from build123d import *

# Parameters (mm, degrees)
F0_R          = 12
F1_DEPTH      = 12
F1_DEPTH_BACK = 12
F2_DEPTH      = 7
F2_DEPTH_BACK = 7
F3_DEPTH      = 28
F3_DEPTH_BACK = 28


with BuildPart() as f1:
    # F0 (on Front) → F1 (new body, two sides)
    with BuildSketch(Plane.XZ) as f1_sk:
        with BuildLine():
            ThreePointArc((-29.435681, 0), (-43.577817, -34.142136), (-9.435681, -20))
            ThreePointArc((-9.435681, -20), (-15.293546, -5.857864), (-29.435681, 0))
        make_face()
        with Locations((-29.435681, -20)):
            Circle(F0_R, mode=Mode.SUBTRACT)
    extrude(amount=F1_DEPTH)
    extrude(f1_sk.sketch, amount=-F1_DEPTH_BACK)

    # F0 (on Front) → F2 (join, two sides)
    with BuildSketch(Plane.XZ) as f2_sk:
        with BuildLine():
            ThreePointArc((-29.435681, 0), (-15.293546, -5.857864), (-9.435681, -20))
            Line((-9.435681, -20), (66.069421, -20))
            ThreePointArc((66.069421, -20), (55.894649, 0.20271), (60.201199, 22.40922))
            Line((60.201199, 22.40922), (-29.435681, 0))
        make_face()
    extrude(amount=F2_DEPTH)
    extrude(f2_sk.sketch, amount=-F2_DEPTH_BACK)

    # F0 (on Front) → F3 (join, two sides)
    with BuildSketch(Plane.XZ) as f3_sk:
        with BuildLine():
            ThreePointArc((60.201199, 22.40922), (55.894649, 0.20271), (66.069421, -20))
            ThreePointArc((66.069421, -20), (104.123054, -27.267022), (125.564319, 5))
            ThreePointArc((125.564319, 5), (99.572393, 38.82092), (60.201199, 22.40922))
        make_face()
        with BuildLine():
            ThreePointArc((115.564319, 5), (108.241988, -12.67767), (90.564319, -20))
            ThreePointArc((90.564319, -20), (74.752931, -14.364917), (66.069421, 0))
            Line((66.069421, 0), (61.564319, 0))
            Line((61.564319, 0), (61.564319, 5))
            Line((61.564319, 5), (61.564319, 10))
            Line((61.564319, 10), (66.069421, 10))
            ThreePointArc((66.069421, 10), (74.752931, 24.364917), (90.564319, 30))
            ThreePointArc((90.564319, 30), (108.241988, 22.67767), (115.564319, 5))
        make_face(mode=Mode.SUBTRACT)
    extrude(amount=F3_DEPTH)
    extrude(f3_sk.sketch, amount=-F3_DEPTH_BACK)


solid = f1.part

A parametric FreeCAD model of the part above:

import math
import FreeCAD as App
import Part
import Sketcher

doc = App.newDocument("Part")
body = doc.addObject("PartDesign::Body", "Body")

sketch1 = body.newObject("Sketcher::SketchObject", "Sketch")
sketch1.AttachmentSupport = (doc.getObject("XZ_Plane"), [""])
sketch1.MapMode = "FlatFace"
sketch1.addGeometry(Part.ArcOfCircle(Part.Circle(App.Vector(-29, -20, 0), App.Vector(0, 0, 1), 20), math.radians(90), math.radians(360)), False)
sketch1.addGeometry(Part.ArcOfCircle(Part.Circle(App.Vector(-29, -20, 0), App.Vector(0, 0, 1), 20), math.radians(0), math.radians(90)), False)
sketch1.addGeometry(Part.Circle(App.Vector(-29, -20, 0), App.Vector(0, 0, 1), 12), False)
sketch1.addConstraint(Sketcher.Constraint("Tangent", 0, 1, 1, 2))
sketch1.addConstraint(Sketcher.Constraint("Coincident", 1, 1, 0, 2))
sketch1.addConstraint(Sketcher.Constraint("Coincident", 2, 3, 0, 3))
sketch1.addConstraint(Sketcher.Constraint("PointOnObject", 0, 1, -1))
sketch1.addConstraint(Sketcher.Constraint("Horizontal", 2, 3, 1, 1))
sketch1.addConstraint(Sketcher.Constraint("Vertical", 2, 3, 0, 1))
sketch1.addConstraint(Sketcher.Constraint("Diameter", 2, 24.0))
sketch1.addConstraint(Sketcher.Constraint("Radius", 0, 20.0))
sketch1.addConstraint(Sketcher.Constraint("DistanceX", 0, 3, -1, 1, 29.435681))
pad1 = body.newObject("PartDesign::Pad", "Pad")
pad1.Profile = sketch1
pad1.Type = "TwoLengths"
pad1.Length = 12
pad1.Length2 = 12

sketch2 = body.newObject("Sketcher::SketchObject", "Sketch001")
sketch2.AttachmentSupport = (doc.getObject("XZ_Plane"), [""])
sketch2.MapMode = "FlatFace"
sketch2.addGeometry(Part.ArcOfCircle(Part.Circle(App.Vector(-29, -20, 0), App.Vector(0, 0, 1), 20), math.radians(0), math.radians(90)), False)
sketch2.addGeometry(Part.LineSegment(App.Vector(-9, -20, 0), App.Vector(66, -20, 0)), False)
sketch2.addGeometry(Part.ArcOfCircle(Part.Circle(App.Vector(91, 5, 0), App.Vector(0, 0, 1), 35), math.radians(150), math.radians(226)), False)
sketch2.addGeometry(Part.LineSegment(App.Vector(60, 22, 0), App.Vector(-29, 0, 0)), False)
sketch2.addConstraint(Sketcher.Constraint("Coincident", 0, 1, 1, 1))
sketch2.addConstraint(Sketcher.Constraint("Coincident", 1, 2, 2, 2))
sketch2.addConstraint(Sketcher.Constraint("Coincident", 2, 1, 3, 1))
sketch2.addConstraint(Sketcher.Constraint("Coincident", 3, 2, 0, 2))
sketch2.addConstraint(Sketcher.Constraint("Horizontal", 1))
sketch2.addConstraint(Sketcher.Constraint("PointOnObject", 3, 2, -1))
sketch2.addConstraint(Sketcher.Constraint("Vertical", 0, 3, 3, 2))
sketch2.addConstraint(Sketcher.Constraint("Radius", 0, 20.0))
sketch2.addConstraint(Sketcher.Constraint("Radius", 2, 35.0))
sketch2.addConstraint(Sketcher.Constraint("DistanceY", -1, 1, 2, 3, 5.0))
sketch2.addConstraint(Sketcher.Constraint("DistanceY", 0, 1, -1, 1, 20.0))
sketch2.addConstraint(Sketcher.Constraint("DistanceX", 0, 3, 2, 3, 120.000001))
sketch2.addConstraint(Sketcher.Constraint("DistanceX", -1, 1, 2, 1, 60.201199))
sketch2.addConstraint(Sketcher.Constraint("Distance", 3, 92.395581))
pad2 = body.newObject("PartDesign::Pad", "Pad001")
pad2.Profile = sketch2
pad2.Type = "TwoLengths"
pad2.Length = 7
pad2.Length2 = 7

sketch3 = body.newObject("Sketcher::SketchObject", "Sketch002")
sketch3.AttachmentSupport = (doc.getObject("XZ_Plane"), [""])
sketch3.MapMode = "FlatFace"
sketch3.addGeometry(Part.ArcOfCircle(Part.Circle(App.Vector(90.6, 5, 0), App.Vector(0, 0, 1), 35), math.radians(150), math.radians(226)), False)
sketch3.addGeometry(Part.ArcOfCircle(Part.Circle(App.Vector(90.6, 5, 0), App.Vector(0, 0, 1), 35), math.radians(-134), math.radians(0)), False)
sketch3.addGeometry(Part.ArcOfCircle(Part.Circle(App.Vector(90.6, 5, 0), App.Vector(0, 0, 1), 35), math.radians(0), math.radians(150)), False)
sketch3.addGeometry(Part.ArcOfCircle(Part.Circle(App.Vector(90.6, 5, 0), App.Vector(0, 0, 1), 25), math.radians(0), math.radians(90)), False)
sketch3.addGeometry(Part.ArcOfCircle(Part.Circle(App.Vector(90.6, 5, 0), App.Vector(0, 0, 1), 25), math.radians(-90), math.radians(0)), False)
sketch3.addGeometry(Part.ArcOfCircle(Part.Circle(App.Vector(90.6, 5, 0), App.Vector(0, 0, 1), 25), math.radians(-168), math.radians(-90)), False)
sketch3.addGeometry(Part.LineSegment(App.Vector(66.1, 0, 0), App.Vector(61.6, 0, 0)), False)
sketch3.addGeometry(Part.LineSegment(App.Vector(61.6, 0, 0), App.Vector(61.6, 10, 0)), False)
sketch3.addGeometry(Part.LineSegment(App.Vector(61.6, 10, 0), App.Vector(66.1, 10, 0)), False)
sketch3.addGeometry(Part.ArcOfCircle(Part.Circle(App.Vector(90.6, 5, 0), App.Vector(0, 0, 1), 25), math.radians(90), math.radians(168)), False)
sketch3.addConstraint(Sketcher.Constraint("Tangent", 0, 2, 1, 1))
sketch3.addConstraint(Sketcher.Constraint("Tangent", 1, 2, 2, 1))
sketch3.addConstraint(Sketcher.Constraint("Tangent", 2, 2, 0, 1))
sketch3.addConstraint(Sketcher.Constraint("Tangent", 3, 1, 4, 2))
sketch3.addConstraint(Sketcher.Constraint("Tangent", 4, 1, 5, 2))
sketch3.addConstraint(Sketcher.Constraint("Coincident", 5, 1, 6, 1))
sketch3.addConstraint(Sketcher.Constraint("Coincident", 6, 2, 7, 1))
sketch3.addConstraint(Sketcher.Constraint("Coincident", 7, 2, 8, 1))
sketch3.addConstraint(Sketcher.Constraint("Coincident", 8, 2, 9, 2))
sketch3.addConstraint(Sketcher.Constraint("Tangent", 9, 1, 3, 2))
sketch3.addConstraint(Sketcher.Constraint("Horizontal", 6))
sketch3.addConstraint(Sketcher.Constraint("Vertical", 7))
sketch3.addConstraint(Sketcher.Constraint("Horizontal", 8))
sketch3.addConstraint(Sketcher.Constraint("Coincident", 3, 3, 0, 3))
sketch3.addConstraint(Sketcher.Constraint("Coincident", 5, 3, 0, 3))
sketch3.addConstraint(Sketcher.Constraint("Equal", 5, 9))
sketch3.addConstraint(Sketcher.Constraint("PointOnObject", 5, 1, -1))
sketch3.addConstraint(Sketcher.Constraint("Horizontal", 9, 3, 1, 2))
sketch3.addConstraint(Sketcher.Constraint("Horizontal", 1, 2, 3, 1))
sketch3.addConstraint(Sketcher.Constraint("Horizontal", 0, 2, 4, 1))
sketch3.addConstraint(Sketcher.Constraint("Vertical", 9, 3, 4, 1))
sketch3.addConstraint(Sketcher.Constraint("Vertical", 0, 2, 5, 1))
sketch3.addConstraint(Sketcher.Constraint("Vertical", 5, 1, 8, 2))
sketch3.addConstraint(Sketcher.Constraint("Vertical", 4, 1, 9, 1))
sketch3.addConstraint(Sketcher.Constraint("Radius", 0, 35.0))
sketch3.addConstraint(Sketcher.Constraint("Radius", 3, 25.0))
sketch3.addConstraint(Sketcher.Constraint("DistanceX", 6, 2, 1, 3, 29.0))
sketch3.addConstraint(Sketcher.Constraint("DistanceX", -1, 1, 2, 2, 60.201199))
sketch3.addConstraint(Sketcher.Constraint("DistanceX", -1, 1, 0, 3, 90.564319))
pad3 = body.newObject("PartDesign::Pad", "Pad002")
pad3.Profile = sketch3
pad3.Type = "TwoLengths"
pad3.Length = 28
pad3.Length2 = 28

doc.recompute()
